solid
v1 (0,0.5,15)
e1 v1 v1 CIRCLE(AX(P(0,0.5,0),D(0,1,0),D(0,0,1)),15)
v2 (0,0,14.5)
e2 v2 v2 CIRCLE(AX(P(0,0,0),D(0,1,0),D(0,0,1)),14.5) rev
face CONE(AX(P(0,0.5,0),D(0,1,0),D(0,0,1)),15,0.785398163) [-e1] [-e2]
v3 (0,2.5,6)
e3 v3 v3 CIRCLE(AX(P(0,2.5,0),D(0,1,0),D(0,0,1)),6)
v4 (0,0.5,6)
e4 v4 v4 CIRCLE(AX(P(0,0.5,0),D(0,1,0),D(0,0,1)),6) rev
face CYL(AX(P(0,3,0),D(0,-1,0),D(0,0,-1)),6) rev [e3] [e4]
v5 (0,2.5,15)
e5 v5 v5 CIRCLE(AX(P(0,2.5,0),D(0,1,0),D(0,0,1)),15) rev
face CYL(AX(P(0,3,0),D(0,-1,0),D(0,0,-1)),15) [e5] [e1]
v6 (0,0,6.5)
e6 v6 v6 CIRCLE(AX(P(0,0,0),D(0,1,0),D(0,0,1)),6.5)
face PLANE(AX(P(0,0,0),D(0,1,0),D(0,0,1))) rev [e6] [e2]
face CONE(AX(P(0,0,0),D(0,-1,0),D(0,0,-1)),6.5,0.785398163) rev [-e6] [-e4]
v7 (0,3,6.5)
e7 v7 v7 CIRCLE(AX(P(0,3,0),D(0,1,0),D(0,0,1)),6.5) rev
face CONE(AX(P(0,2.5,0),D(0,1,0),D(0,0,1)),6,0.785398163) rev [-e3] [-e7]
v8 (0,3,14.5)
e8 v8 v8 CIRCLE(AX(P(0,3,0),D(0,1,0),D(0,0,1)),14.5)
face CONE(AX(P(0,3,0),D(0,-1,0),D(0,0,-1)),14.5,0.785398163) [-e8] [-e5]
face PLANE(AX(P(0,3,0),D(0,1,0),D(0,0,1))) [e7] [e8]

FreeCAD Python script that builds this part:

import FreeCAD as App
import Part
import Sketcher

V = App.Vector


def edges_at(feature, points):
    """Names of the edges that pass closest to the given points."""
    edges = feature.Shape.Edges
    near = lambda p: min(range(len(edges)), key=lambda i: edges[i].distToShape(Part.Vertex(*p))[0])
    return sorted({f"Edge{near(p) + 1}" for p in points})

doc = App.newDocument("Part")
body = doc.addObject("PartDesign::Body", "Body")

# Sketch on XZ plane
sketch1 = doc.addObject("Sketcher::SketchObject", "Sketch")
body.addObject(sketch1)
sketch1.AttachmentSupport = (doc.XZ_Plane, [""])
sketch1.MapMode = "FlatFace"
sketch1.addGeometry(Part.Circle(V(0, 0, 0), V(0, 0, 1), 15), False)
sketch1.addGeometry(Part.Circle(V(0, 0, 0), V(0, 0, 1), 6), False)
sketch1.addConstraint(Sketcher.Constraint("Coincident", 0, 3, -1, 1))
sketch1.addConstraint(Sketcher.Constraint("Coincident", 1, 3, -1, 1))
sketch1.addConstraint(Sketcher.Constraint("Diameter", 0, 30.0))
sketch1.addConstraint(Sketcher.Constraint("Diameter", 1, 12.0))
pad1 = doc.addObject("PartDesign::Pad", "Pad")
body.addObject(pad1)
pad1.Profile = sketch1
pad1.Length = 3
pad1.Reversed = True
doc.recompute()

chamfer = doc.addObject("PartDesign::Chamfer", "Chamfer")
body.addObject(chamfer)
chamfer.Base = (pad1, edges_at(pad1, [
    (0, 0, -15),
    (0, 3, -15),
    (0, 0, -6),
    (0, 3, -6),
]))
chamfer.Size = 0.5

doc.recompute()
